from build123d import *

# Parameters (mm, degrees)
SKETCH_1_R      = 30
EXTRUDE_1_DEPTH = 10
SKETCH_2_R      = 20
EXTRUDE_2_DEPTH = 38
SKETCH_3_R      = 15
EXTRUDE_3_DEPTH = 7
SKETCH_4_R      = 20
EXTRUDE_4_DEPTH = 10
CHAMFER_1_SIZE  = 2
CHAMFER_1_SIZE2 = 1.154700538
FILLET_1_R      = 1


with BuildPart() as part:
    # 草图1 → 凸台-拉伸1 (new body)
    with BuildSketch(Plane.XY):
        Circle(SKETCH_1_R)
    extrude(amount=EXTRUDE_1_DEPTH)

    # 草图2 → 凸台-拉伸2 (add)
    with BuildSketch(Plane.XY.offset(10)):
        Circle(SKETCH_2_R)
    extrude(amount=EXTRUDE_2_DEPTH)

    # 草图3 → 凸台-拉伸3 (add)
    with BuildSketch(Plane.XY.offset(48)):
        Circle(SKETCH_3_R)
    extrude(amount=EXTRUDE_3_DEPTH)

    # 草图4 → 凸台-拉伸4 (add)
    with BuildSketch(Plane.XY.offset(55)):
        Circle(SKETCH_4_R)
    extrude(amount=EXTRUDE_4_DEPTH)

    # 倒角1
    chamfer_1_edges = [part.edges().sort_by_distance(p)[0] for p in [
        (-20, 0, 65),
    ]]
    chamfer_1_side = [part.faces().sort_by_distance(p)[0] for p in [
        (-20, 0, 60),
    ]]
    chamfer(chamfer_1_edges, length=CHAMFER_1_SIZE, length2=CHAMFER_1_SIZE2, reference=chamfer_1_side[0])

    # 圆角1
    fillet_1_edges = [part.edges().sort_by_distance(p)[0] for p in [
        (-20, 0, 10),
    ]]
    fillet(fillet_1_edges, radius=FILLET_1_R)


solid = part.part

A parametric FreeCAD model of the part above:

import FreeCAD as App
import Part
import Sketcher
from FreeCAD import Vector
Q = App.Units.Quantity


def edges_at(feature, points):
    """Names of the edges that pass closest to the given points."""
    edges = feature.Shape.Edges
    near = lambda p: min(range(len(edges)), key=lambda i: edges[i].distToShape(Part.Vertex(*p))[0])
    return sorted({f"Edge{near(p) + 1}" for p in points})

doc = App.newDocument("Part")
body = doc.addObject("PartDesign::Body", "Body")

# Sketch on XY plane
sketch1 = doc.addObject("Sketcher::SketchObject", "Sketch")
body.addObject(sketch1)
sketch1.AttachmentSupport = (doc.XY_Plane, [""])
sketch1.MapMode = "FlatFace"
sketch1.addGeometry(Part.Circle(Vector(0, 0, 0), Vector(0, 0, 1), 30), False)
sketch1.addConstraint([
    Sketcher.Constraint("Coincident", 0, 3, -1, 1),
    Sketcher.Constraint("Diameter", 0, Q("60 mm")),
])
pad1 = doc.addObject("PartDesign::Pad", "Pad")
body.addObject(pad1)
pad1.Profile = sketch1
pad1.Length = 10

# Sketch on XY plane
sketch2 = doc.addObject("Sketcher::SketchObject", "Sketch001")
body.addObject(sketch2)
sketch2.AttachmentSupport = (doc.XY_Plane, [""])
sketch2.MapMode = "FlatFace"
sketch2.AttachmentOffset = App.Placement(Vector(0, 0, 10), App.Rotation())
sketch2.addGeometry(Part.Circle(Vector(0, 0, 0), Vector(0, 0, 1), 20), False)
sketch2.addConstraint([
    Sketcher.Constraint("Coincident", 0, 3, -1, 1),
    Sketcher.Constraint("Diameter", 0, Q("40 mm")),
])
pad2 = doc.addObject("PartDesign::Pad", "Pad001")
body.addObject(pad2)
pad2.Profile = sketch2
pad2.Length = 38

# Sketch on XY plane
sketch3 = doc.addObject("Sketcher::SketchObject", "Sketch002")
body.addObject(sketch3)
sketch3.AttachmentSupport = (doc.XY_Plane, [""])
sketch3.MapMode = "FlatFace"
sketch3.AttachmentOffset = App.Placement(Vector(0, 0, 48), App.Rotation())
sketch3.addGeometry(Part.Circle(Vector(0, 0, 0), Vector(0, 0, 1), 15), False)
sketch3.addConstraint([
    Sketcher.Constraint("Coincident", 0, 3, -1, 1),
    Sketcher.Constraint("Diameter", 0, Q("30 mm")),
])
pad3 = doc.addObject("PartDesign::Pad", "Pad002")
body.addObject(pad3)
pad3.Profile = sketch3
pad3.Length = 7

# Sketch on XY plane
sketch4 = doc.addObject("Sketcher::SketchObject", "Sketch003")
body.addObject(sketch4)
sketch4.AttachmentSupport = (doc.XY_Plane, [""])
sketch4.MapMode = "FlatFace"
sketch4.AttachmentOffset = App.Placement(Vector(0, 0, 55), App.Rotation())
sketch4.addGeometry(Part.Circle(Vector(0, 0, 0), Vector(0, 0, 1), 20), False)
sketch4.addConstraint([
    Sketcher.Constraint("Coincident", 0, 3, -1, 1),
    Sketcher.Constraint("Diameter", 0, Q("40 mm")),
])
pad4 = doc.addObject("PartDesign::Pad", "Pad003")
body.addObject(pad4)
pad4.Profile = sketch4
pad4.Length = 10
doc.recompute()

chamfer = doc.addObject("PartDesign::Chamfer", "Chamfer")
body.addObject(chamfer)
chamfer.Base = (pad4, edges_at(pad4, [(-20, 0, 65)]))
chamfer.ChamferType = "Two distances"
chamfer.Size = 2
chamfer.Size2 = 1.154701
doc.recompute()

fillet = doc.addObject("PartDesign::Fillet", "Fillet")
body.addObject(fillet)
fillet.Base = (chamfer, edges_at(chamfer, [(-20, 0, 10)]))
fillet.Radius = 1

doc.recompute()
